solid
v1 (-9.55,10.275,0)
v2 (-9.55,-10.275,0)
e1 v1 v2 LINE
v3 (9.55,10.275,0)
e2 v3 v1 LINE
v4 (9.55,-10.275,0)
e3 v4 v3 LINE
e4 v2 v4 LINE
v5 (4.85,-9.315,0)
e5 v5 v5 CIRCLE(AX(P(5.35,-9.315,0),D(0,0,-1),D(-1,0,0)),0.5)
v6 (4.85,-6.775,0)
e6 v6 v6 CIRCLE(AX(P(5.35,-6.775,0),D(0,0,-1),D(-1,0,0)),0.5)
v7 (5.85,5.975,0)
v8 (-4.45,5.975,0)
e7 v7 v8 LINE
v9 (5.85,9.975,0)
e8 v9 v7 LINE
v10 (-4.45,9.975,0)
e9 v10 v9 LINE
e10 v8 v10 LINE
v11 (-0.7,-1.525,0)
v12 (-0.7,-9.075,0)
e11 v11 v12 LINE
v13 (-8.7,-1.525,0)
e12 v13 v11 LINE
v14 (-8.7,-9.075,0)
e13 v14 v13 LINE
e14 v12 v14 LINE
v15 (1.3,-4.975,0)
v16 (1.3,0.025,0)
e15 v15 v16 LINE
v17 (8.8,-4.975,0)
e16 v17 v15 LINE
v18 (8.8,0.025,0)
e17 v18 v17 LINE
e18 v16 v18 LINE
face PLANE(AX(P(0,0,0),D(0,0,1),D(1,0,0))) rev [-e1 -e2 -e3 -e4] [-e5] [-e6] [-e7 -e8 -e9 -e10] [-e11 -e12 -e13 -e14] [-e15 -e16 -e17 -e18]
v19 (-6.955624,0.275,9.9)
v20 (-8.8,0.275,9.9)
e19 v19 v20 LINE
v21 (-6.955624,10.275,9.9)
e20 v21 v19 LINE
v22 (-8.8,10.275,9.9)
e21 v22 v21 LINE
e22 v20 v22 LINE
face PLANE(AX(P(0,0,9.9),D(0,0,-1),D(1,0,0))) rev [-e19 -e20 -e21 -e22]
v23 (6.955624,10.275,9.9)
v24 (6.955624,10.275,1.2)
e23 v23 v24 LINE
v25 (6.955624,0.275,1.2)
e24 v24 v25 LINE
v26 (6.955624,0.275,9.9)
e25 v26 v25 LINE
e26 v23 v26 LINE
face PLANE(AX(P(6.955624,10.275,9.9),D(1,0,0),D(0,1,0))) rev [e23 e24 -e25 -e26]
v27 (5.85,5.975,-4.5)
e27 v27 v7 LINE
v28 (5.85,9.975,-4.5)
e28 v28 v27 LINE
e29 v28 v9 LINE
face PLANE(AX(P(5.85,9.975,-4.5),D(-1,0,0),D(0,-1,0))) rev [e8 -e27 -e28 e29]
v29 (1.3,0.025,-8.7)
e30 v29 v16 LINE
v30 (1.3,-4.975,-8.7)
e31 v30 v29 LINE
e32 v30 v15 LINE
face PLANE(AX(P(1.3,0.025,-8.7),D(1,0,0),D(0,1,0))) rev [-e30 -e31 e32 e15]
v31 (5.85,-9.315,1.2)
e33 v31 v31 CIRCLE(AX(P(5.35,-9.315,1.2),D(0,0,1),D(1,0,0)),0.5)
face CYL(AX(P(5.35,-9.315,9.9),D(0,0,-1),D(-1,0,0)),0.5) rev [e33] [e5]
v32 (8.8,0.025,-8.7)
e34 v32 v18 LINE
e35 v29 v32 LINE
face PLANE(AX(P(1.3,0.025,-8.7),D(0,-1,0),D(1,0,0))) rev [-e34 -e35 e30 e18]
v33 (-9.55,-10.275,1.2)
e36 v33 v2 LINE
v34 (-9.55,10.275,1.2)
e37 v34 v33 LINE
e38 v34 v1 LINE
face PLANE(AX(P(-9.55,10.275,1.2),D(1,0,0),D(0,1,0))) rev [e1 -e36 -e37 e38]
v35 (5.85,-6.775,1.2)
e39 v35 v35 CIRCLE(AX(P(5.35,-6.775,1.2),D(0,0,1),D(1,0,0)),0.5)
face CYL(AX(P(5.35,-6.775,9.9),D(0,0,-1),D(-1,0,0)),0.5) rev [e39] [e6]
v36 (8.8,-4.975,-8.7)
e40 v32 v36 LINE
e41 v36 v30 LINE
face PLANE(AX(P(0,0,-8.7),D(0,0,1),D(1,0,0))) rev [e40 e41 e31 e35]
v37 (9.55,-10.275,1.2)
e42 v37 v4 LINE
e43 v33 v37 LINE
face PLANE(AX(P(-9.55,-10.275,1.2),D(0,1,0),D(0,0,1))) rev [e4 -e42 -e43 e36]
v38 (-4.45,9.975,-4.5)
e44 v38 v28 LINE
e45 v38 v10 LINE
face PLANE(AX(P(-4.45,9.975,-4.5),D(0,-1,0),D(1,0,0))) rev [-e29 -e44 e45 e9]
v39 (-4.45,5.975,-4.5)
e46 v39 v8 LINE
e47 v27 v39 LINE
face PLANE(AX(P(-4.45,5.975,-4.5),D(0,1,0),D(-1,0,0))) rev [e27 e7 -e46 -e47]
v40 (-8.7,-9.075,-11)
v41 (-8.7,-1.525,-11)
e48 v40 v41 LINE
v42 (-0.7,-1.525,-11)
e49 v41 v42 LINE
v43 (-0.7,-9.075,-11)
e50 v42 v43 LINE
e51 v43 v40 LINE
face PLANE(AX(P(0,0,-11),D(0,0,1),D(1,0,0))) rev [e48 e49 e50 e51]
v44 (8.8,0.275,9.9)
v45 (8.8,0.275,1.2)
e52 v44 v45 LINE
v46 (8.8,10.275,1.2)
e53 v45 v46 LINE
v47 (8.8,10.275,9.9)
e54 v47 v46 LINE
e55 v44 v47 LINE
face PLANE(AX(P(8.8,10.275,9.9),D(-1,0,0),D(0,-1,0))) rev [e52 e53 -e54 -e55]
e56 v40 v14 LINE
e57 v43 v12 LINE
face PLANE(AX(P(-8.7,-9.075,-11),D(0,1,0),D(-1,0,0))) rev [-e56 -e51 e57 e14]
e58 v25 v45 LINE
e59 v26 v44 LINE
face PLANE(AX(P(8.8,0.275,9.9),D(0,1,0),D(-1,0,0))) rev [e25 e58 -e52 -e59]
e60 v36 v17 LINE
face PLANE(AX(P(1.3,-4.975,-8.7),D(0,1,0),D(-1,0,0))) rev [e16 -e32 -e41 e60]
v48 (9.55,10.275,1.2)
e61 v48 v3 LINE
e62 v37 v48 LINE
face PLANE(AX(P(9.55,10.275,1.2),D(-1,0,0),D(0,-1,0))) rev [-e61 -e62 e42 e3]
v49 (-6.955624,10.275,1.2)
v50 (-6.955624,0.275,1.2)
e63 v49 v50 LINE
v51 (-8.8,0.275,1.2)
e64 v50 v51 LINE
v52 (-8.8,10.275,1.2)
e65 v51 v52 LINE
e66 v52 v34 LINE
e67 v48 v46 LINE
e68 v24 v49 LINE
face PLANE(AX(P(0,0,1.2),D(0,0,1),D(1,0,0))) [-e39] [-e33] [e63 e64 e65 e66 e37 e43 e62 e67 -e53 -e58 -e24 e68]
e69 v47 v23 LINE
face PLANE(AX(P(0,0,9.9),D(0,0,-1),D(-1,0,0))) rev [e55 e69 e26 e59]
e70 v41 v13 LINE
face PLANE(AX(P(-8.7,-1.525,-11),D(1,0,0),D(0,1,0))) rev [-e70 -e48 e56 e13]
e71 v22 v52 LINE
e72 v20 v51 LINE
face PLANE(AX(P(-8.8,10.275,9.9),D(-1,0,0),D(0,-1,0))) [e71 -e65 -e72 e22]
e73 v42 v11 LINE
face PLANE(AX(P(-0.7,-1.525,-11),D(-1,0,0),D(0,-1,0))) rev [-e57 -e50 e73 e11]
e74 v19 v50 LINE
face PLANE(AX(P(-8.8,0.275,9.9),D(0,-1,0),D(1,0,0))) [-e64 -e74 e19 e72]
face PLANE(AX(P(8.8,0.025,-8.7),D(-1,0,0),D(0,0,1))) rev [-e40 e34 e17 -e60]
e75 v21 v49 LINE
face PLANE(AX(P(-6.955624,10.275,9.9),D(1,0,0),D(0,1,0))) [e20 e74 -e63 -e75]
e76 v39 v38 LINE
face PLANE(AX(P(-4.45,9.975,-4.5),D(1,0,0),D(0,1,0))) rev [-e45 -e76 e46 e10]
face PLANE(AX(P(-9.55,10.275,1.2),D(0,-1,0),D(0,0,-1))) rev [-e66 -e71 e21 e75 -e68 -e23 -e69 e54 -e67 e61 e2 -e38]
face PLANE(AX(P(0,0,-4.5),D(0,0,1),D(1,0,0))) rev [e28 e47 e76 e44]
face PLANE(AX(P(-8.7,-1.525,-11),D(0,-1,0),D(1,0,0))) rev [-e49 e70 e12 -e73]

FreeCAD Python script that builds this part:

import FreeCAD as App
import Part
import Sketcher

V = App.Vector

doc = App.newDocument("Part")
body = doc.addObject("PartDesign::Body", "Body")

# Sketch on XY plane
sketch1 = doc.addObject("Sketcher::SketchObject", "Sketch")
body.addObject(sketch1)
sketch1.AttachmentSupport = (doc.XY_Plane, [""])
sketch1.MapMode = "FlatFace"
sketch1.addGeometry(Part.LineSegment(V(-10, 10, 0), V(-10, -10, 0)), False)
sketch1.addGeometry(Part.LineSegment(V(-10, -10, 0), V(10, -10, 0)), False)
sketch1.addGeometry(Part.LineSegment(V(10, -10, 0), V(10, 10, 0)), False)
sketch1.addGeometry(Part.LineSegment(V(10, 10, 0), V(-10, 10, 0)), False)
sketch1.addConstraint(Sketcher.Constraint("Coincident", 0, 2, 1, 1))
sketch1.addConstraint(Sketcher.Constraint("Coincident", 1, 2, 2, 1))
sketch1.addConstraint(Sketcher.Constraint("Coincident", 2, 2, 3, 1))
sketch1.addConstraint(Sketcher.Constraint("Coincident", 3, 2, 0, 1))
sketch1.addConstraint(Sketcher.Constraint("Vertical", 0))
sketch1.addConstraint(Sketcher.Constraint("Horizontal", 1))
sketch1.addConstraint(Sketcher.Constraint("Vertical", 2))
sketch1.addConstraint(Sketcher.Constraint("Horizontal", 3))
sketch1.addConstraint(Sketcher.Constraint("Symmetric", 0, 2, 2, 2, -1, 1))
sketch1.addConstraint(Sketcher.Constraint("DistanceX", 1, 1, 1, 2, 19.1))
sketch1.addConstraint(Sketcher.Constraint("DistanceY", 0, 2, 0, 1, 20.55))
pad1 = doc.addObject("PartDesign::Pad", "Pad")
body.addObject(pad1)
pad1.Profile = sketch1
pad1.Length = 1.2

# Sketch on XY plane
sketch2 = doc.addObject("Sketcher::SketchObject", "Sketch001")
body.addObject(sketch2)
sketch2.AttachmentSupport = (doc.XY_Plane, [""])
sketch2.MapMode = "FlatFace"
sketch2.AttachmentOffset = App.Placement(V(0, 0, 1.2), App.Rotation())
sketch2.addGeometry(Part.LineSegment(V(7, 10.3, 0), V(7, 0.3, 0)), False)
sketch2.addGeometry(Part.LineSegment(V(7, 0.3, 0), V(8.8, 0.3, 0)), False)
sketch2.addGeometry(Part.LineSegment(V(8.8, 0.3, 0), V(8.8, 10.3, 0)), False)
sketch2.addGeometry(Part.LineSegment(V(8.8, 10.3, 0), V(7, 10.3, 0)), False)
sketch2.addConstraint(Sketcher.Constraint("Coincident", 0, 2, 1, 1))
sketch2.addConstraint(Sketcher.Constraint("Coincident", 1, 2, 2, 1))
sketch2.addConstraint(Sketcher.Constraint("Coincident", 2, 2, 3, 1))
sketch2.addConstraint(Sketcher.Constraint("Coincident", 3, 2, 0, 1))
sketch2.addConstraint(Sketcher.Constraint("Vertical", 0))
sketch2.addConstraint(Sketcher.Constraint("Horizontal", 1))
sketch2.addConstraint(Sketcher.Constraint("Vertical", 2))
sketch2.addConstraint(Sketcher.Constraint("Horizontal", 3))
sketch2.addConstraint(Sketcher.Constraint("DistanceY", 0, 2, 0, 1, 10.0))
sketch2.addConstraint(Sketcher.Constraint("DistanceX", -1, 1, 1, 2, 8.8))
sketch2.addConstraint(Sketcher.Constraint("DistanceY", -1, 1, 0, 2, 0.275))
sketch2.addConstraint(Sketcher.Constraint("DistanceX", 1, 1, 1, 2, 1.844376))
pad2 = doc.addObject("PartDesign::Pad", "Pad001")
body.addObject(pad2)
pad2.Profile = sketch2
pad2.Length = 8.7
doc.recompute()

mirrored = doc.addObject("PartDesign::Mirrored", "Mirrored")
body.addObject(mirrored)
mirrored.Originals = [pad2]
mirrored.MirrorPlane = (doc.YZ_Plane, [""])
body.Tip = mirrored

# Sketch on XY plane
sketch3 = doc.addObject("Sketcher::SketchObject", "Sketch002")
body.addObject(sketch3)
sketch3.AttachmentSupport = (doc.XY_Plane, [""])
sketch3.MapMode = "FlatFace"
sketch3.addGeometry(Part.LineSegment(V(9, 0, 0), V(9, -5, 0)), False)
sketch3.addGeometry(Part.LineSegment(V(9, -5, 0), V(1, -5, 0)), False)
sketch3.addGeometry(Part.LineSegment(V(1, -5, 0), V(1, 0, 0)), False)
sketch3.addGeometry(Part.LineSegment(V(1, 0, 0), V(9, 0, 0)), False)
sketch3.addConstraint(Sketcher.Constraint("Coincident", 0, 2, 1, 1))
sketch3.addConstraint(Sketcher.Constraint("Coincident", 1, 2, 2, 1))
sketch3.addConstraint(Sketcher.Constraint("Coincident", 2, 2, 3, 1))
sketch3.addConstraint(Sketcher.Constraint("Coincident", 3, 2, 0, 1))
sketch3.addConstraint(Sketcher.Constraint("Vertical", 0))
sketch3.addConstraint(Sketcher.Constraint("Horizontal", 1))
sketch3.addConstraint(Sketcher.Constraint("Vertical", 2))
sketch3.addConstraint(Sketcher.Constraint("Horizontal", 3))
sketch3.addConstraint(Sketcher.Constraint("DistanceY", 0, 2, 0, 1, 5.0))
sketch3.addConstraint(Sketcher.Constraint("DistanceX", 1, 2, 1, 1, 7.5))
sketch3.addConstraint(Sketcher.Constraint("DistanceX", -1, 1, 0, 2, 8.8))
sketch3.addConstraint(Sketcher.Constraint("DistanceY", 0, 2, -1, 1, 4.975))
pad3 = doc.addObject("PartDesign::Pad", "Pad002")
body.addObject(pad3)
pad3.Profile = sketch3
pad3.Length = 8.7
pad3.Reversed = True

# Sketch on XY plane
sketch4 = doc.addObject("Sketcher::SketchObject", "Sketch003")
body.addObject(sketch4)
sketch4.AttachmentSupport = (doc.XY_Plane, [""])
sketch4.MapMode = "FlatFace"
sketch4.addGeometry(Part.LineSegment(V(-1, -2, 0), V(-1, -9, 0)), False)
sketch4.addGeometry(Part.LineSegment(V(-1, -9, 0), V(-9, -9, 0)), False)
sketch4.addGeometry(Part.LineSegment(V(-9, -9, 0), V(-9, -2, 0)), False)
sketch4.addGeometry(Part.LineSegment(V(-9, -2, 0), V(-1, -2, 0)), False)
sketch4.addConstraint(Sketcher.Constraint("Coincident", 0, 2, 1, 1))
sketch4.addConstraint(Sketcher.Constraint("Coincident", 1, 2, 2, 1))
sketch4.addConstraint(Sketcher.Constraint("Coincident", 2, 2, 3, 1))
sketch4.addConstraint(Sketcher.Constraint("Coincident", 3, 2, 0, 1))
sketch4.addConstraint(Sketcher.Constraint("Vertical", 0))
sketch4.addConstraint(Sketcher.Constraint("Horizontal", 1))
sketch4.addConstraint(Sketcher.Constraint("Vertical", 2))
sketch4.addConstraint(Sketcher.Constraint("Horizontal", 3))
sketch4.addConstraint(Sketcher.Constraint("DistanceX", 1, 2, 1, 1, 8.0))
sketch4.addConstraint(Sketcher.Constraint("DistanceY", 0, 2, 0, 1, 7.55))
sketch4.addConstraint(Sketcher.Constraint("DistanceX", 0, 2, -1, 1, 0.7))
sketch4.addConstraint(Sketcher.Constraint("DistanceY", 0, 2, -1, 1, 9.075))
pad4 = doc.addObject("PartDesign::Pad", "Pad003")
body.addObject(pad4)
pad4.Profile = sketch4
pad4.Length = 11
pad4.Reversed = True

# Sketch on XY plane
sketch5 = doc.addObject("Sketcher::SketchObject", "Sketch004")
body.addObject(sketch5)
sketch5.AttachmentSupport = (doc.XY_Plane, [""])
sketch5.MapMode = "FlatFace"
sketch5.addGeometry(Part.LineSegment(V(5.8, 10, 0), V(5.8, 6, 0)), False)
sketch5.addGeometry(Part.LineSegment(V(5.8, 6, 0), V(-4.5, 6, 0)), False)
sketch5.addGeometry(Part.LineSegment(V(-4.5, 6, 0), V(-4.5, 10, 0)), False)
sketch5.addGeometry(Part.LineSegment(V(-4.5, 10, 0), V(5.8, 10, 0)), False)
sketch5.addConstraint(Sketcher.Constraint("Coincident", 0, 2, 1, 1))
sketch5.addConstraint(Sketcher.Constraint("Coincident", 1, 2, 2, 1))
sketch5.addConstraint(Sketcher.Constraint("Coincident", 2, 2, 3, 1))
sketch5.addConstraint(Sketcher.Constraint("Coincident", 3, 2, 0, 1))
sketch5.addConstraint(Sketcher.Constraint("Vertical", 0))
sketch5.addConstraint(Sketcher.Constraint("Horizontal", 1))
sketch5.addConstraint(Sketcher.Constraint("Vertical", 2))
sketch5.addConstraint(Sketcher.Constraint("Horizontal", 3))
sketch5.addConstraint(Sketcher.Constraint("DistanceY", 0, 2, 0, 1, 4.0))
sketch5.addConstraint(Sketcher.Constraint("DistanceX", 1, 2, 1, 1, 10.3))
sketch5.addConstraint(Sketcher.Constraint("DistanceX", -1, 1, 0, 2, 5.85))
sketch5.addConstraint(Sketcher.Constraint("DistanceY", -1, 1, 0, 2, 5.975))
pad5 = doc.addObject("PartDesign::Pad", "Pad004")
body.addObject(pad5)
pad5.Profile = sketch5
pad5.Length = 4.5
pad5.Reversed = True

# Sketch on XY plane
sketch6 = doc.addObject("Sketcher::SketchObject", "Sketch005")
body.addObject(sketch6)
sketch6.AttachmentSupport = (doc.XY_Plane, [""])
sketch6.MapMode = "FlatFace"
sketch6.addGeometry(Part.Circle(V(5.3, -6.8, 0), V(0, 0, 1), 0.5), False)
sketch6.addGeometry(Part.Circle(V(5.3, -9.3, 0), V(0, 0, 1), 0.5), False)
sketch6.addConstraint(Sketcher.Constraint("Equal", 0, 1))
sketch6.addConstraint(Sketcher.Constraint("Vertical", 0, 3, 1, 3))
sketch6.addConstraint(Sketcher.Constraint("Diameter", 0, 1.0))
sketch6.addConstraint(Sketcher.Constraint("DistanceX", -1, 1, 0, 3, 5.35))
sketch6.addConstraint(Sketcher.Constraint("DistanceY", 1, 3, 0, 3, 2.54))
sketch6.addConstraint(Sketcher.Constraint("DistanceY", 0, 3, -1, 1, 6.775))
pocket1 = doc.addObject("PartDesign::Pocket", "Pocket")
body.addObject(pocket1)
pocket1.Profile = sketch6
pocket1.Type = "ThroughAll"
pocket1.Reversed = True

doc.recompute()
